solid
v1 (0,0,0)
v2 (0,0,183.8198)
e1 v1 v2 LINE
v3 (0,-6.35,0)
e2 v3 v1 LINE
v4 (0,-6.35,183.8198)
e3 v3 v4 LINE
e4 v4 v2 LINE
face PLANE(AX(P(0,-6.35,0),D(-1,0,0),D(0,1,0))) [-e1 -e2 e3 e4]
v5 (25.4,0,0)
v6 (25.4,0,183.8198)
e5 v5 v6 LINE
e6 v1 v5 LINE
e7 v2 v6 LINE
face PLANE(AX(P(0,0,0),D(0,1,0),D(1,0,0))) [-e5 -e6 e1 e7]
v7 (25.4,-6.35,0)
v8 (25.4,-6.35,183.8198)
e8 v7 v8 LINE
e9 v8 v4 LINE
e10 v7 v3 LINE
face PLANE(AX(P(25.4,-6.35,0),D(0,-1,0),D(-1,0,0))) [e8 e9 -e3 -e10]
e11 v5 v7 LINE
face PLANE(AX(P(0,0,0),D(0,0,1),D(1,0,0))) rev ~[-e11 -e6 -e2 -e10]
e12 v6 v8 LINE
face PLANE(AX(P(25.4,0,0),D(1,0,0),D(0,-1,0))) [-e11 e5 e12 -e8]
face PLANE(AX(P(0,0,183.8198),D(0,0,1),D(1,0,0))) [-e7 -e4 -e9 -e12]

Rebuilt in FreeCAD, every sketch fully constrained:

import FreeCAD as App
import Part
import Sketcher
Q = App.Units.Quantity

doc = App.newDocument("Part")
body = doc.addObject("PartDesign::Body", "Body")

sketch1 = body.newObject("Sketcher::SketchObject", "Sketch")
sketch1.AttachmentSupport = (doc.getObject("XY_Plane"), [""])
sketch1.MapMode = "FlatFace"
sketch1.addGeometry([
    Part.LineSegment(App.Vector(25, 0, 0), App.Vector(0, 0, 0)),
    Part.LineSegment(App.Vector(0, 0, 0), App.Vector(0, -6, 0)),
    Part.LineSegment(App.Vector(0, -6, 0), App.Vector(25, -6, 0)),
    Part.LineSegment(App.Vector(25, -6, 0), App.Vector(25, 0, 0)),
], False)
sketch1.addConstraint([
    Sketcher.Constraint("Coincident", 0, 2, 1, 1),
    Sketcher.Constraint("Coincident", 1, 2, 2, 1),
    Sketcher.Constraint("Coincident", 2, 2, 3, 1),
    Sketcher.Constraint("Coincident", 3, 2, 0, 1),
    Sketcher.Constraint("Horizontal", 0),
    Sketcher.Constraint("Vertical", 1),
    Sketcher.Constraint("Horizontal", 2),
    Sketcher.Constraint("Vertical", 3),
    Sketcher.Constraint("Coincident", 0, 2, -1, 1),
    Sketcher.Constraint("DistanceX", 0, 2, 0, 1, Q("1 in")),
    Sketcher.Constraint("DistanceY", 1, 2, 1, 1, Q("0.25 in")),
])
pad1 = body.newObject("PartDesign::Pad", "Pad")
pad1.Profile = sketch1
pad1.Length = Q("7.237 in")

doc.recompute()
